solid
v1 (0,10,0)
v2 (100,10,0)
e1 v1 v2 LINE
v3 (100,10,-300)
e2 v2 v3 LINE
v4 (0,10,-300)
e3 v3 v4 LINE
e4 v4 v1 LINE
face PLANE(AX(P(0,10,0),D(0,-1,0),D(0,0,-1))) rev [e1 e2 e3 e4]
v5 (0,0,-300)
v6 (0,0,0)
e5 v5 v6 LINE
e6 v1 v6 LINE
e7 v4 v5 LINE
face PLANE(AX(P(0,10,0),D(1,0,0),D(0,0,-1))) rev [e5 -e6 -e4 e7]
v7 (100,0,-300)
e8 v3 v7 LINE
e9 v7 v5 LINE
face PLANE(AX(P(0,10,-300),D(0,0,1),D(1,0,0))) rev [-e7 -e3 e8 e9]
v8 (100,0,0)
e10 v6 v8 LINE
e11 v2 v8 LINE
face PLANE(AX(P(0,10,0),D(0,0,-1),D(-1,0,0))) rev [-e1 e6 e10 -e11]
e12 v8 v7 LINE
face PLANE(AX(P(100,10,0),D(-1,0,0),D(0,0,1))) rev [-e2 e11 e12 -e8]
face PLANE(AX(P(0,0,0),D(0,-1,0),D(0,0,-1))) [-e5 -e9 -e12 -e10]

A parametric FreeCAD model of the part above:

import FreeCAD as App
import Part
import Sketcher


def add_polygon(sketch, points):
    """Adds a closed chain of lines whose ends are joined by coincident constraints."""
    first, n = sketch.GeometryCount, len(points)
    for a, b in zip(points, points[1:] + points[:1]):
        sketch.addGeometry(Part.LineSegment(App.Vector(*a, 0), App.Vector(*b, 0)), False)
    for i in range(n):
        sketch.addConstraint(Sketcher.Constraint("Coincident", first + i, 2, first + (i + 1) % n, 1))

doc = App.newDocument("Part")
body = doc.addObject("PartDesign::Body", "Body")

# Sketch on XZ plane
sketch1 = body.newObject("Sketcher::SketchObject", "Sketch")
sketch1.AttachmentSupport = (doc.getObject("XZ_Plane"), [""])
sketch1.MapMode = "FlatFace"
add_polygon(sketch1, [(0, -300), (0, 0), (100, 0), (100, -300)])  # lines 0-3
sketch1.addConstraint([
    Sketcher.Constraint("Vertical", 0),
    Sketcher.Constraint("Horizontal", 1),
    Sketcher.Constraint("Vertical", 2),
    Sketcher.Constraint("Horizontal", 3),
    Sketcher.Constraint("Coincident", 0, 2, -1, 1),
    Sketcher.Constraint("DistanceX", 1, 1, 1, 2, 100.0),
    Sketcher.Constraint("DistanceY", 0, 1, 0, 2, 300.0),
])
pad1 = body.newObject("PartDesign::Pad", "Pad")
pad1.Profile = sketch1
pad1.Length = 10
pad1.Reversed = True

doc.recompute()
